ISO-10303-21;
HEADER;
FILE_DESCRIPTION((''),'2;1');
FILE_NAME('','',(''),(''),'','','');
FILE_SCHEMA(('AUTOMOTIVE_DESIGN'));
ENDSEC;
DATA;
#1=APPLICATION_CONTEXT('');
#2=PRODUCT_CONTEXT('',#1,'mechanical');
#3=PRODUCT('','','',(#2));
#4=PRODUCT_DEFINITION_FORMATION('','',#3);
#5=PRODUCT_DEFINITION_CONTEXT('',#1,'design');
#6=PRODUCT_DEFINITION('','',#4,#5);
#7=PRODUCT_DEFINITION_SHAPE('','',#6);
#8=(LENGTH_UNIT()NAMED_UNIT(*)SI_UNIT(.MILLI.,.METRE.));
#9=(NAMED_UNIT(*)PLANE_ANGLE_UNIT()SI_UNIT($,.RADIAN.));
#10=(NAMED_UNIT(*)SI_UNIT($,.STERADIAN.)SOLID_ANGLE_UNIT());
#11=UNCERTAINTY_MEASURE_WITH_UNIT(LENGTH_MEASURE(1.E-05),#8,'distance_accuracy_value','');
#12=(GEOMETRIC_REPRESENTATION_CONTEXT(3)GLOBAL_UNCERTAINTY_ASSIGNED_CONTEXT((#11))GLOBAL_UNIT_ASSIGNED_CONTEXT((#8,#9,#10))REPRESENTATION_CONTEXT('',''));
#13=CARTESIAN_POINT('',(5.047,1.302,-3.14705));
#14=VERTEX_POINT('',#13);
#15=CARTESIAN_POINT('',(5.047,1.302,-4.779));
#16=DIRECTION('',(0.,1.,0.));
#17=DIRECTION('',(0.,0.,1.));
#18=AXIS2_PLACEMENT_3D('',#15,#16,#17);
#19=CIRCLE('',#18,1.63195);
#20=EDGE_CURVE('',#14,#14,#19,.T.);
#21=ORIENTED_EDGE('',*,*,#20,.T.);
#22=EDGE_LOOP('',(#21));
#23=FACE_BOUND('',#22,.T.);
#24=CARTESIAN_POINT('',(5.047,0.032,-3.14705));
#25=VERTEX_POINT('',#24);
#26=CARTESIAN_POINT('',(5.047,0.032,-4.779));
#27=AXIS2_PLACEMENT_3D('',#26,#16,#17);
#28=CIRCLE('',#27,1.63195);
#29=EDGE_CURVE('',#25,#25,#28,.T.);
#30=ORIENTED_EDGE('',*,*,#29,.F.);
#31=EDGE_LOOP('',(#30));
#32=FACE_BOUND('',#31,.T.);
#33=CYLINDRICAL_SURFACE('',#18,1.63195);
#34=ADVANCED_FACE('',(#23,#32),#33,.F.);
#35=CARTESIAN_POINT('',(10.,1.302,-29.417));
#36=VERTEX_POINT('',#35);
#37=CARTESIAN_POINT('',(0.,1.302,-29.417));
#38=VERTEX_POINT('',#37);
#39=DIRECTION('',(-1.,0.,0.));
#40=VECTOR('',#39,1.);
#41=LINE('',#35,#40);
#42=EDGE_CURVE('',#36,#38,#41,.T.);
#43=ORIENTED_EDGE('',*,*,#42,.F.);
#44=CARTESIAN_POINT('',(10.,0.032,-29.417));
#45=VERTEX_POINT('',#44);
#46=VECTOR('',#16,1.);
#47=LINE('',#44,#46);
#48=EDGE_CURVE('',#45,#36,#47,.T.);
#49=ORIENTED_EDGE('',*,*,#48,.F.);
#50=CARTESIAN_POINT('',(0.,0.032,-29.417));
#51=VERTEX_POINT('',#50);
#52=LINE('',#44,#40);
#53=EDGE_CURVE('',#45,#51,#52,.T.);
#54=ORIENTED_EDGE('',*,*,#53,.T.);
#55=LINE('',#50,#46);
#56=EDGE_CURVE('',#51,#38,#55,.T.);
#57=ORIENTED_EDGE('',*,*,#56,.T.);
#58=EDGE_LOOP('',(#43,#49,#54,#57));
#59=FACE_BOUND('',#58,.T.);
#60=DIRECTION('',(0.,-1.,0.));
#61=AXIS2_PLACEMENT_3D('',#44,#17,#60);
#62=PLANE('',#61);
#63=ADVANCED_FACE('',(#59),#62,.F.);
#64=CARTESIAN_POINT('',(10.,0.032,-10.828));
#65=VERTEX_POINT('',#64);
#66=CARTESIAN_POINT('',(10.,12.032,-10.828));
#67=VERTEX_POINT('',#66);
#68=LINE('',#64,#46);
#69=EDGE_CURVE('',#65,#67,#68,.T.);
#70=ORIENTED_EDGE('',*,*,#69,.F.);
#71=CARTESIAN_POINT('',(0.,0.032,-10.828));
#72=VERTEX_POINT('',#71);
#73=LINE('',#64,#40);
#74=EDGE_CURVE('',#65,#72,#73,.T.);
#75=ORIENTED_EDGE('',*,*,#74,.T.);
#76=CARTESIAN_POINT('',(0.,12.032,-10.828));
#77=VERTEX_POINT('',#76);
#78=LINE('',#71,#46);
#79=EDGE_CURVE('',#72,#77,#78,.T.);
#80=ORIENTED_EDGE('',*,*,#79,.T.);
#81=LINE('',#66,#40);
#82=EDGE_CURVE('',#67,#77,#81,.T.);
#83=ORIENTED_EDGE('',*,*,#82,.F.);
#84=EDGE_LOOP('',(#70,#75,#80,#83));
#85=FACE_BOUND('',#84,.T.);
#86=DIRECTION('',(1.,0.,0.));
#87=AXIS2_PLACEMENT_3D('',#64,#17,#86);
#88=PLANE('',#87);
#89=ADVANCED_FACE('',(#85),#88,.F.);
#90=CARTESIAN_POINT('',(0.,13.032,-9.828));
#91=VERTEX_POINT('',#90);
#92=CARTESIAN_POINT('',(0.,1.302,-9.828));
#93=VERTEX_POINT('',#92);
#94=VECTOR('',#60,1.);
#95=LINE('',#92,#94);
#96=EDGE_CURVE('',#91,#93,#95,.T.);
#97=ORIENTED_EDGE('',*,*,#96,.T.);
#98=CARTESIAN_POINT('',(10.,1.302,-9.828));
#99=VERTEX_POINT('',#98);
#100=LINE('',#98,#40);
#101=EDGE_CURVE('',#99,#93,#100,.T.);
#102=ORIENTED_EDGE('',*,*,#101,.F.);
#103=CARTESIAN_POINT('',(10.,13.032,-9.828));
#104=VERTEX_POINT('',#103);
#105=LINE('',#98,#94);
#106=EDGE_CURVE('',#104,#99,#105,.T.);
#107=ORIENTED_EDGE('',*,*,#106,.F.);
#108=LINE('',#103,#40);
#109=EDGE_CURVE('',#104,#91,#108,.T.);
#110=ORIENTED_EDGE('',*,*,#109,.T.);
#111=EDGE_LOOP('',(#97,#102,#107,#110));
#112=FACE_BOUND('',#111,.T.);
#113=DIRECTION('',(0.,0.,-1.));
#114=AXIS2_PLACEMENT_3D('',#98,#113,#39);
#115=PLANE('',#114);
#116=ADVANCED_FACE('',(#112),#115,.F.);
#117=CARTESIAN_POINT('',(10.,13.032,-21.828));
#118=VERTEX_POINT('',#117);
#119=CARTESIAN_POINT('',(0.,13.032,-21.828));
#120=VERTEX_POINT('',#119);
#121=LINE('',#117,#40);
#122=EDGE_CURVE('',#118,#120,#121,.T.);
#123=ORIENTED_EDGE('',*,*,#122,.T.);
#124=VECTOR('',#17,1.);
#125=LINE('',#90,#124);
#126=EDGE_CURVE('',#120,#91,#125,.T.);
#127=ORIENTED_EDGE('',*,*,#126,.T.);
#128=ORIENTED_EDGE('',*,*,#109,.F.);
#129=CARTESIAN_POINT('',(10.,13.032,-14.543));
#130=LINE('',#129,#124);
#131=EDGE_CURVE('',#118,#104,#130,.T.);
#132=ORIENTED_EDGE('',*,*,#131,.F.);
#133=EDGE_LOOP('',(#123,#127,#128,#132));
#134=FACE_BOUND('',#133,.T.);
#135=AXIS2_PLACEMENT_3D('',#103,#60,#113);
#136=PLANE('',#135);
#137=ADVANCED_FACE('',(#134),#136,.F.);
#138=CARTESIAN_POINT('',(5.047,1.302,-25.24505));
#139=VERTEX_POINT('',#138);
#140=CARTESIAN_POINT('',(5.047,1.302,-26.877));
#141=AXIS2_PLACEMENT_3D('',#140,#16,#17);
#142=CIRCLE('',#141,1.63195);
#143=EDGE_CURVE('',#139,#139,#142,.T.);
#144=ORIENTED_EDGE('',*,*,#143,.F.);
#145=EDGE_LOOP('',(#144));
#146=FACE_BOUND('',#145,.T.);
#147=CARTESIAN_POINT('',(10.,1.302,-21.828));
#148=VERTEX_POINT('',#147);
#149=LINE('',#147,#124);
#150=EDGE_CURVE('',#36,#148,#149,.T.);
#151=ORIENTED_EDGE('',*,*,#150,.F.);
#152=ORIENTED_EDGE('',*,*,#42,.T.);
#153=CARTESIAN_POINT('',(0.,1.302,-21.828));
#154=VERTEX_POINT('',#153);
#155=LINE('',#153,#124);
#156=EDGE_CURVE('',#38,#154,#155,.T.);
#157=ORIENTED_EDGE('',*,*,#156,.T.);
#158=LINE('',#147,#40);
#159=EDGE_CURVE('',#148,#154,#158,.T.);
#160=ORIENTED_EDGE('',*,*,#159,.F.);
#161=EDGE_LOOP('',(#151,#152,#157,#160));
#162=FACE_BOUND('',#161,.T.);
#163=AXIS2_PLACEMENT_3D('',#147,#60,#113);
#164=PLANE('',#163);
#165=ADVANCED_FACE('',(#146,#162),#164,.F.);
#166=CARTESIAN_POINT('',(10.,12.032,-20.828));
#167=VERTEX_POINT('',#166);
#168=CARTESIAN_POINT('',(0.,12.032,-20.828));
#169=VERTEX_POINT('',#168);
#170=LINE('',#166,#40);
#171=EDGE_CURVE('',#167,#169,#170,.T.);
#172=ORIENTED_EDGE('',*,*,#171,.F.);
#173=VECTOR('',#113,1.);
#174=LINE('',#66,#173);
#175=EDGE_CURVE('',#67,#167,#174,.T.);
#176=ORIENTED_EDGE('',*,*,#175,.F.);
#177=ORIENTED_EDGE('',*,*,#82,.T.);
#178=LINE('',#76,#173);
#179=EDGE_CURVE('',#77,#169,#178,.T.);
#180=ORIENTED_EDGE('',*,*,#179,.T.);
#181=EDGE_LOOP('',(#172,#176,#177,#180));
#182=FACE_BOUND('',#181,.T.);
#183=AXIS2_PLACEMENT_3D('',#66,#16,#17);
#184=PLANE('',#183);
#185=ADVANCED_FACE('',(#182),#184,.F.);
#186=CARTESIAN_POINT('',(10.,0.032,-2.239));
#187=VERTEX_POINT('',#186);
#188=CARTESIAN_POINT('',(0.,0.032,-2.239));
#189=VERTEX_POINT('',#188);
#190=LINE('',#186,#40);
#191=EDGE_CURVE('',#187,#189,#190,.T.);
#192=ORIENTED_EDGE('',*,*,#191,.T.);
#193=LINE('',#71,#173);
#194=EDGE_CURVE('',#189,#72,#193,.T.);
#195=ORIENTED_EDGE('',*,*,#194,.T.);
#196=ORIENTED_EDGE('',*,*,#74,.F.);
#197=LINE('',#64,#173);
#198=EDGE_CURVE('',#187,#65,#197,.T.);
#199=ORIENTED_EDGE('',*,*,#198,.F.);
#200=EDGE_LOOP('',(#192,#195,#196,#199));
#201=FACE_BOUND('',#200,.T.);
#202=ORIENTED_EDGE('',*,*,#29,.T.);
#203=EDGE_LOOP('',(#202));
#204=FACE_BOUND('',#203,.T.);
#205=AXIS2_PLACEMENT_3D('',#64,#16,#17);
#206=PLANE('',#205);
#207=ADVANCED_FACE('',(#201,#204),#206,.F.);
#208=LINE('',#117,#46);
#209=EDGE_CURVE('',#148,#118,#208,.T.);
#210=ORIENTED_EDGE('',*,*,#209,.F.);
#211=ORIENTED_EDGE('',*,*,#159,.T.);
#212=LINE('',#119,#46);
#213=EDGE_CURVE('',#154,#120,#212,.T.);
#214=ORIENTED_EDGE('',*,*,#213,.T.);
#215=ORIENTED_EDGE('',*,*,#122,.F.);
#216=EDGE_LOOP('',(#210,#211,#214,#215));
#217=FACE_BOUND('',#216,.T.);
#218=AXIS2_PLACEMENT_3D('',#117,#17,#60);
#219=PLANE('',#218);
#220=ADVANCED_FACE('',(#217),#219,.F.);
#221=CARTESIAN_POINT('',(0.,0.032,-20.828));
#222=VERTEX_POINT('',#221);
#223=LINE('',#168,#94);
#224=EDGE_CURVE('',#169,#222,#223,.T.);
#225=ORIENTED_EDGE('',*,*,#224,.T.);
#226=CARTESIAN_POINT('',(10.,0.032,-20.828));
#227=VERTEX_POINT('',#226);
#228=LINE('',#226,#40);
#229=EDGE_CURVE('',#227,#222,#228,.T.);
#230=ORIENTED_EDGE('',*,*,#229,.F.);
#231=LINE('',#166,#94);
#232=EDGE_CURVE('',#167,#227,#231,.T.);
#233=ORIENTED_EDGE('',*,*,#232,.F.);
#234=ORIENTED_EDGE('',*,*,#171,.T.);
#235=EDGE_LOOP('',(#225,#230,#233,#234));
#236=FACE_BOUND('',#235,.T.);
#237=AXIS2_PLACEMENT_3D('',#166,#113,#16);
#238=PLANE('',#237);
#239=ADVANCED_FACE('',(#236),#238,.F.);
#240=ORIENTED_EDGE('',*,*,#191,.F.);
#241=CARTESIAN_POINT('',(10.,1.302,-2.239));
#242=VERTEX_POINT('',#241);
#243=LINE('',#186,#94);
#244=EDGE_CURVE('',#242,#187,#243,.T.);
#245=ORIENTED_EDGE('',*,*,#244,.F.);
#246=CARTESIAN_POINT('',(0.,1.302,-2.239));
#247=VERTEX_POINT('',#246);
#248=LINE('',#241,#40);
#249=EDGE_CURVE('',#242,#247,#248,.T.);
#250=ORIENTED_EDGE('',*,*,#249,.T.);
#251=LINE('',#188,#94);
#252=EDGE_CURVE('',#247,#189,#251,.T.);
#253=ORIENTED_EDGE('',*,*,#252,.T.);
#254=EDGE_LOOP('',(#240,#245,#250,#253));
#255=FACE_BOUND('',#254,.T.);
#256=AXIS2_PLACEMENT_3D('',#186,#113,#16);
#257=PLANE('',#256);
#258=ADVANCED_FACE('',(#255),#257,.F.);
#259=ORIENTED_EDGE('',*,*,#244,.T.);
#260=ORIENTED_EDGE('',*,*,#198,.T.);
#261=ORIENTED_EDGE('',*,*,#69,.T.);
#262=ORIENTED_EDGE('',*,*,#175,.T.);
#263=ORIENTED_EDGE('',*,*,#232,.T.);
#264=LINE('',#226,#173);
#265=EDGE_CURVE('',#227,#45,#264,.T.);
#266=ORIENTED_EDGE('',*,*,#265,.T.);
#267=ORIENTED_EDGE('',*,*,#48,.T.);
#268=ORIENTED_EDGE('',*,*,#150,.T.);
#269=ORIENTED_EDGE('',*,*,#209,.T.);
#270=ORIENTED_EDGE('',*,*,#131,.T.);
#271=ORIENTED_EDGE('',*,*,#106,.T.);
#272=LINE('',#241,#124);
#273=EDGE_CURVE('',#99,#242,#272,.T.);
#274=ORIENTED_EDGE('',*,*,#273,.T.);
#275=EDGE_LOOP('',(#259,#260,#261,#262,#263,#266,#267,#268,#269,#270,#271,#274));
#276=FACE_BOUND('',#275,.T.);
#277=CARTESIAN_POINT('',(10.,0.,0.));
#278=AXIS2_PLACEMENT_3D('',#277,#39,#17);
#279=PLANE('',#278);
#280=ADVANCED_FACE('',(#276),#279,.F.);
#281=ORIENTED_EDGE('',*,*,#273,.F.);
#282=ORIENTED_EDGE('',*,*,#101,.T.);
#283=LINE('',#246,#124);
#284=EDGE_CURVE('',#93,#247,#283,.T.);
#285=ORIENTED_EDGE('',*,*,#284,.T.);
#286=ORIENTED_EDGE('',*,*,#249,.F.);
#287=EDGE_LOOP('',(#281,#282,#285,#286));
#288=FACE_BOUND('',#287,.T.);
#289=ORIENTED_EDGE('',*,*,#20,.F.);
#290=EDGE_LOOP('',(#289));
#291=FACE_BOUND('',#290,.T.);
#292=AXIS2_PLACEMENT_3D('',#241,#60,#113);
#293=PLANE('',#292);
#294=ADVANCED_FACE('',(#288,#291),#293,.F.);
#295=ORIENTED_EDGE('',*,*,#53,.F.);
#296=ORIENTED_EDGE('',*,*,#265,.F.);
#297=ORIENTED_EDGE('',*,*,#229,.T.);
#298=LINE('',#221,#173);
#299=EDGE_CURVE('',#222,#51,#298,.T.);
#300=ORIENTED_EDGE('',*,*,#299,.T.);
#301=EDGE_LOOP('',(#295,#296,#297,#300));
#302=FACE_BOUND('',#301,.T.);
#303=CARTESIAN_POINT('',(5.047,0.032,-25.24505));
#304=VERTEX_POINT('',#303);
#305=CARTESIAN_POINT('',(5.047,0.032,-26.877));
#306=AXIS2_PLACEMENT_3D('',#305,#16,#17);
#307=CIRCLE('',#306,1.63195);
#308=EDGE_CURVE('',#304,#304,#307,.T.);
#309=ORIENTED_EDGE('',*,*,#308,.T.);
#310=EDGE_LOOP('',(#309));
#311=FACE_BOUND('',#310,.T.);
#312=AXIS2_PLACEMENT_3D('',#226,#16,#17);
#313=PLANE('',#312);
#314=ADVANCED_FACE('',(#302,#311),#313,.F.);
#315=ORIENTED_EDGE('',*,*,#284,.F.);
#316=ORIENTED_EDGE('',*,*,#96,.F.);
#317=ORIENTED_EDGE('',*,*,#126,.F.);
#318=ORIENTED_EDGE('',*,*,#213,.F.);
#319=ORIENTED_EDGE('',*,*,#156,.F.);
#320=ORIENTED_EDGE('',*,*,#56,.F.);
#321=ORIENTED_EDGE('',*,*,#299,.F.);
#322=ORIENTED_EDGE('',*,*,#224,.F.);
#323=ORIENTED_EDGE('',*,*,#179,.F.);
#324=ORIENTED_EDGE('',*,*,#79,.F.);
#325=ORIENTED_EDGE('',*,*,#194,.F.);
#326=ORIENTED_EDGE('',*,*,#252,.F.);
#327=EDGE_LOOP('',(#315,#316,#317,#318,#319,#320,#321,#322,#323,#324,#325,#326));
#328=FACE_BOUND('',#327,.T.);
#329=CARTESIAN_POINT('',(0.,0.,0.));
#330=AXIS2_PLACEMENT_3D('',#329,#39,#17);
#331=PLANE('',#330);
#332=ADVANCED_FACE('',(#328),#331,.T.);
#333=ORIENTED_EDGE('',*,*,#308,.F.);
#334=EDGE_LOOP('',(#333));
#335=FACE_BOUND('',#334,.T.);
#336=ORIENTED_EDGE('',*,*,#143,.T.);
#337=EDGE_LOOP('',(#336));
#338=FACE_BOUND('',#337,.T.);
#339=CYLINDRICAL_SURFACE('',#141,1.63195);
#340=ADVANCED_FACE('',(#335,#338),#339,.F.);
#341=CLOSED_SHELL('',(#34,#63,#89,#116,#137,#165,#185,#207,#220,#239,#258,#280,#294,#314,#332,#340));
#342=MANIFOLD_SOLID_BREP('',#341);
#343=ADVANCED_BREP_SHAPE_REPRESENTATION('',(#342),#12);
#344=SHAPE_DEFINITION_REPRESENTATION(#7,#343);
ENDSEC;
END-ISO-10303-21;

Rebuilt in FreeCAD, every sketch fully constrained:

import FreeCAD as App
import Part
import Sketcher

doc = App.newDocument("Part")
body = doc.addObject("PartDesign::Body", "Body")

# Sketch on YZ plane
sketch1 = doc.addObject("Sketcher::SketchObject", "Sketch")
body.addObject(sketch1)
sketch1.AttachmentSupport = (doc.YZ_Plane, [""])
sketch1.MapMode = "FlatFace"
sketch1.addGeometry([
    Part.LineSegment(App.Vector(0, -2.2, 0), App.Vector(0, -10.8, 0)),  # 0
    Part.LineSegment(App.Vector(0, -10.8, 0), App.Vector(12, -10.8, 0)),  # 1
    Part.LineSegment(App.Vector(12, -10.8, 0), App.Vector(12, -20.8, 0)),  # 2
    Part.LineSegment(App.Vector(12, -20.8, 0), App.Vector(0, -20.8, 0)),  # 3
    Part.LineSegment(App.Vector(0, -20.8, 0), App.Vector(0, -29.4, 0)),  # 4
    Part.LineSegment(App.Vector(0, -29.4, 0), App.Vector(1.3, -29.4, 0)),  # 5
    Part.LineSegment(App.Vector(1.3, -29.4, 0), App.Vector(1.3, -21.8, 0)),  # 6
    Part.LineSegment(App.Vector(1.3, -21.8, 0), App.Vector(13, -21.8, 0)),  # 7
    Part.LineSegment(App.Vector(13, -21.8, 0), App.Vector(13, -9.8, 0)),  # 8
    Part.LineSegment(App.Vector(13, -9.8, 0), App.Vector(1.3, -9.8, 0)),  # 9
    Part.LineSegment(App.Vector(1.3, -9.8, 0), App.Vector(1.3, -2.2, 0)),  # 10
    Part.LineSegment(App.Vector(1.3, -2.2, 0), App.Vector(0, -2.2, 0)),  # 11
], False)
sketch1.addConstraint([
    Sketcher.Constraint("Coincident", 0, 2, 1, 1),
    Sketcher.Constraint("Coincident", 1, 2, 2, 1),
    Sketcher.Constraint("Coincident", 2, 2, 3, 1),
    Sketcher.Constraint("Coincident", 3, 2, 4, 1),
    Sketcher.Constraint("Coincident", 4, 2, 5, 1),
    Sketcher.Constraint("Coincident", 5, 2, 6, 1),
    Sketcher.Constraint("Coincident", 6, 2, 7, 1),
    Sketcher.Constraint("Coincident", 7, 2, 8, 1),
    Sketcher.Constraint("Coincident", 8, 2, 9, 1),
    Sketcher.Constraint("Coincident", 9, 2, 10, 1),
    Sketcher.Constraint("Coincident", 10, 2, 11, 1),
    Sketcher.Constraint("Coincident", 11, 2, 0, 1),
    Sketcher.Constraint("Vertical", 0),
    Sketcher.Constraint("Horizontal", 1),
    Sketcher.Constraint("Vertical", 2),
    Sketcher.Constraint("Horizontal", 3),
    Sketcher.Constraint("Vertical", 4),
    Sketcher.Constraint("Horizontal", 5),
    Sketcher.Constraint("Vertical", 6),
    Sketcher.Constraint("Horizontal", 7),
    Sketcher.Constraint("Vertical", 8),
    Sketcher.Constraint("Horizontal", 9),
    Sketcher.Constraint("Vertical", 10),
    Sketcher.Constraint("Horizontal", 11),
    Sketcher.Constraint("Vertical", 0, 2, 3, 2),
    Sketcher.Constraint("Vertical", 6, 2, 9, 2),
    Sketcher.Constraint("Equal", 0, 4),
    Sketcher.Constraint("Equal", 3, 8),
    Sketcher.Constraint("Equal", 6, 10),
    Sketcher.Constraint("DistanceX", 1, 1, 1, 2, 12.0),
    Sketcher.Constraint("DistanceY", 2, 2, 2, 1, 10.0),
    Sketcher.Constraint("DistanceX", 2, 2, 7, 2, 1.0),
    Sketcher.Constraint("DistanceX", 5, 1, 5, 2, 1.27),
    Sketcher.Constraint("DistanceY", 0, 2, 0, 1, 8.589),
    Sketcher.Constraint("DistanceX", -1, 1, 0, 2, 0.032),
    Sketcher.Constraint("DistanceY", 0, 2, -1, 1, 10.828),
])
pad1 = doc.addObject("PartDesign::Pad", "Pad")
body.addObject(pad1)
pad1.Profile = sketch1
pad1.Length = 10

# Sketch on XZ plane
sketch2 = doc.addObject("Sketcher::SketchObject", "Sketch001")
body.addObject(sketch2)
sketch2.AttachmentSupport = (doc.XZ_Plane, [""])
sketch2.MapMode = "FlatFace"
sketch2.AttachmentOffset = App.Placement(App.Vector(0, 0, -1.302), App.Rotation())
sketch2.addGeometry([
    Part.Circle(App.Vector(5, -26.9, 0), App.Vector(0, 0, 1), 1.6),
    Part.Circle(App.Vector(5, -4.8, 0), App.Vector(0, 0, 1), 1.6),
], False)
sketch2.addConstraint([
    Sketcher.Constraint("Equal", 0, 1),
    Sketcher.Constraint("Vertical", 0, 3, 1, 3),
    Sketcher.Constraint("Diameter", 0, 3.2639),
    Sketcher.Constraint("DistanceX", -1, 1, 0, 3, 5.047),
    Sketcher.Constraint("DistanceY", 0, 3, -1, 1, 26.877),
    Sketcher.Constraint("DistanceY", 1, 3, -1, 1, 4.779),
])
doc.recompute()
hole = doc.addObject("PartDesign::Hole", "Hole")
body.addObject(hole)
hole.Profile = sketch2
hole.ThreadType = "None"
hole.Diameter = 3.2639
hole.DepthType = "ThroughAll"
hole.Reversed = True

doc.recompute()
